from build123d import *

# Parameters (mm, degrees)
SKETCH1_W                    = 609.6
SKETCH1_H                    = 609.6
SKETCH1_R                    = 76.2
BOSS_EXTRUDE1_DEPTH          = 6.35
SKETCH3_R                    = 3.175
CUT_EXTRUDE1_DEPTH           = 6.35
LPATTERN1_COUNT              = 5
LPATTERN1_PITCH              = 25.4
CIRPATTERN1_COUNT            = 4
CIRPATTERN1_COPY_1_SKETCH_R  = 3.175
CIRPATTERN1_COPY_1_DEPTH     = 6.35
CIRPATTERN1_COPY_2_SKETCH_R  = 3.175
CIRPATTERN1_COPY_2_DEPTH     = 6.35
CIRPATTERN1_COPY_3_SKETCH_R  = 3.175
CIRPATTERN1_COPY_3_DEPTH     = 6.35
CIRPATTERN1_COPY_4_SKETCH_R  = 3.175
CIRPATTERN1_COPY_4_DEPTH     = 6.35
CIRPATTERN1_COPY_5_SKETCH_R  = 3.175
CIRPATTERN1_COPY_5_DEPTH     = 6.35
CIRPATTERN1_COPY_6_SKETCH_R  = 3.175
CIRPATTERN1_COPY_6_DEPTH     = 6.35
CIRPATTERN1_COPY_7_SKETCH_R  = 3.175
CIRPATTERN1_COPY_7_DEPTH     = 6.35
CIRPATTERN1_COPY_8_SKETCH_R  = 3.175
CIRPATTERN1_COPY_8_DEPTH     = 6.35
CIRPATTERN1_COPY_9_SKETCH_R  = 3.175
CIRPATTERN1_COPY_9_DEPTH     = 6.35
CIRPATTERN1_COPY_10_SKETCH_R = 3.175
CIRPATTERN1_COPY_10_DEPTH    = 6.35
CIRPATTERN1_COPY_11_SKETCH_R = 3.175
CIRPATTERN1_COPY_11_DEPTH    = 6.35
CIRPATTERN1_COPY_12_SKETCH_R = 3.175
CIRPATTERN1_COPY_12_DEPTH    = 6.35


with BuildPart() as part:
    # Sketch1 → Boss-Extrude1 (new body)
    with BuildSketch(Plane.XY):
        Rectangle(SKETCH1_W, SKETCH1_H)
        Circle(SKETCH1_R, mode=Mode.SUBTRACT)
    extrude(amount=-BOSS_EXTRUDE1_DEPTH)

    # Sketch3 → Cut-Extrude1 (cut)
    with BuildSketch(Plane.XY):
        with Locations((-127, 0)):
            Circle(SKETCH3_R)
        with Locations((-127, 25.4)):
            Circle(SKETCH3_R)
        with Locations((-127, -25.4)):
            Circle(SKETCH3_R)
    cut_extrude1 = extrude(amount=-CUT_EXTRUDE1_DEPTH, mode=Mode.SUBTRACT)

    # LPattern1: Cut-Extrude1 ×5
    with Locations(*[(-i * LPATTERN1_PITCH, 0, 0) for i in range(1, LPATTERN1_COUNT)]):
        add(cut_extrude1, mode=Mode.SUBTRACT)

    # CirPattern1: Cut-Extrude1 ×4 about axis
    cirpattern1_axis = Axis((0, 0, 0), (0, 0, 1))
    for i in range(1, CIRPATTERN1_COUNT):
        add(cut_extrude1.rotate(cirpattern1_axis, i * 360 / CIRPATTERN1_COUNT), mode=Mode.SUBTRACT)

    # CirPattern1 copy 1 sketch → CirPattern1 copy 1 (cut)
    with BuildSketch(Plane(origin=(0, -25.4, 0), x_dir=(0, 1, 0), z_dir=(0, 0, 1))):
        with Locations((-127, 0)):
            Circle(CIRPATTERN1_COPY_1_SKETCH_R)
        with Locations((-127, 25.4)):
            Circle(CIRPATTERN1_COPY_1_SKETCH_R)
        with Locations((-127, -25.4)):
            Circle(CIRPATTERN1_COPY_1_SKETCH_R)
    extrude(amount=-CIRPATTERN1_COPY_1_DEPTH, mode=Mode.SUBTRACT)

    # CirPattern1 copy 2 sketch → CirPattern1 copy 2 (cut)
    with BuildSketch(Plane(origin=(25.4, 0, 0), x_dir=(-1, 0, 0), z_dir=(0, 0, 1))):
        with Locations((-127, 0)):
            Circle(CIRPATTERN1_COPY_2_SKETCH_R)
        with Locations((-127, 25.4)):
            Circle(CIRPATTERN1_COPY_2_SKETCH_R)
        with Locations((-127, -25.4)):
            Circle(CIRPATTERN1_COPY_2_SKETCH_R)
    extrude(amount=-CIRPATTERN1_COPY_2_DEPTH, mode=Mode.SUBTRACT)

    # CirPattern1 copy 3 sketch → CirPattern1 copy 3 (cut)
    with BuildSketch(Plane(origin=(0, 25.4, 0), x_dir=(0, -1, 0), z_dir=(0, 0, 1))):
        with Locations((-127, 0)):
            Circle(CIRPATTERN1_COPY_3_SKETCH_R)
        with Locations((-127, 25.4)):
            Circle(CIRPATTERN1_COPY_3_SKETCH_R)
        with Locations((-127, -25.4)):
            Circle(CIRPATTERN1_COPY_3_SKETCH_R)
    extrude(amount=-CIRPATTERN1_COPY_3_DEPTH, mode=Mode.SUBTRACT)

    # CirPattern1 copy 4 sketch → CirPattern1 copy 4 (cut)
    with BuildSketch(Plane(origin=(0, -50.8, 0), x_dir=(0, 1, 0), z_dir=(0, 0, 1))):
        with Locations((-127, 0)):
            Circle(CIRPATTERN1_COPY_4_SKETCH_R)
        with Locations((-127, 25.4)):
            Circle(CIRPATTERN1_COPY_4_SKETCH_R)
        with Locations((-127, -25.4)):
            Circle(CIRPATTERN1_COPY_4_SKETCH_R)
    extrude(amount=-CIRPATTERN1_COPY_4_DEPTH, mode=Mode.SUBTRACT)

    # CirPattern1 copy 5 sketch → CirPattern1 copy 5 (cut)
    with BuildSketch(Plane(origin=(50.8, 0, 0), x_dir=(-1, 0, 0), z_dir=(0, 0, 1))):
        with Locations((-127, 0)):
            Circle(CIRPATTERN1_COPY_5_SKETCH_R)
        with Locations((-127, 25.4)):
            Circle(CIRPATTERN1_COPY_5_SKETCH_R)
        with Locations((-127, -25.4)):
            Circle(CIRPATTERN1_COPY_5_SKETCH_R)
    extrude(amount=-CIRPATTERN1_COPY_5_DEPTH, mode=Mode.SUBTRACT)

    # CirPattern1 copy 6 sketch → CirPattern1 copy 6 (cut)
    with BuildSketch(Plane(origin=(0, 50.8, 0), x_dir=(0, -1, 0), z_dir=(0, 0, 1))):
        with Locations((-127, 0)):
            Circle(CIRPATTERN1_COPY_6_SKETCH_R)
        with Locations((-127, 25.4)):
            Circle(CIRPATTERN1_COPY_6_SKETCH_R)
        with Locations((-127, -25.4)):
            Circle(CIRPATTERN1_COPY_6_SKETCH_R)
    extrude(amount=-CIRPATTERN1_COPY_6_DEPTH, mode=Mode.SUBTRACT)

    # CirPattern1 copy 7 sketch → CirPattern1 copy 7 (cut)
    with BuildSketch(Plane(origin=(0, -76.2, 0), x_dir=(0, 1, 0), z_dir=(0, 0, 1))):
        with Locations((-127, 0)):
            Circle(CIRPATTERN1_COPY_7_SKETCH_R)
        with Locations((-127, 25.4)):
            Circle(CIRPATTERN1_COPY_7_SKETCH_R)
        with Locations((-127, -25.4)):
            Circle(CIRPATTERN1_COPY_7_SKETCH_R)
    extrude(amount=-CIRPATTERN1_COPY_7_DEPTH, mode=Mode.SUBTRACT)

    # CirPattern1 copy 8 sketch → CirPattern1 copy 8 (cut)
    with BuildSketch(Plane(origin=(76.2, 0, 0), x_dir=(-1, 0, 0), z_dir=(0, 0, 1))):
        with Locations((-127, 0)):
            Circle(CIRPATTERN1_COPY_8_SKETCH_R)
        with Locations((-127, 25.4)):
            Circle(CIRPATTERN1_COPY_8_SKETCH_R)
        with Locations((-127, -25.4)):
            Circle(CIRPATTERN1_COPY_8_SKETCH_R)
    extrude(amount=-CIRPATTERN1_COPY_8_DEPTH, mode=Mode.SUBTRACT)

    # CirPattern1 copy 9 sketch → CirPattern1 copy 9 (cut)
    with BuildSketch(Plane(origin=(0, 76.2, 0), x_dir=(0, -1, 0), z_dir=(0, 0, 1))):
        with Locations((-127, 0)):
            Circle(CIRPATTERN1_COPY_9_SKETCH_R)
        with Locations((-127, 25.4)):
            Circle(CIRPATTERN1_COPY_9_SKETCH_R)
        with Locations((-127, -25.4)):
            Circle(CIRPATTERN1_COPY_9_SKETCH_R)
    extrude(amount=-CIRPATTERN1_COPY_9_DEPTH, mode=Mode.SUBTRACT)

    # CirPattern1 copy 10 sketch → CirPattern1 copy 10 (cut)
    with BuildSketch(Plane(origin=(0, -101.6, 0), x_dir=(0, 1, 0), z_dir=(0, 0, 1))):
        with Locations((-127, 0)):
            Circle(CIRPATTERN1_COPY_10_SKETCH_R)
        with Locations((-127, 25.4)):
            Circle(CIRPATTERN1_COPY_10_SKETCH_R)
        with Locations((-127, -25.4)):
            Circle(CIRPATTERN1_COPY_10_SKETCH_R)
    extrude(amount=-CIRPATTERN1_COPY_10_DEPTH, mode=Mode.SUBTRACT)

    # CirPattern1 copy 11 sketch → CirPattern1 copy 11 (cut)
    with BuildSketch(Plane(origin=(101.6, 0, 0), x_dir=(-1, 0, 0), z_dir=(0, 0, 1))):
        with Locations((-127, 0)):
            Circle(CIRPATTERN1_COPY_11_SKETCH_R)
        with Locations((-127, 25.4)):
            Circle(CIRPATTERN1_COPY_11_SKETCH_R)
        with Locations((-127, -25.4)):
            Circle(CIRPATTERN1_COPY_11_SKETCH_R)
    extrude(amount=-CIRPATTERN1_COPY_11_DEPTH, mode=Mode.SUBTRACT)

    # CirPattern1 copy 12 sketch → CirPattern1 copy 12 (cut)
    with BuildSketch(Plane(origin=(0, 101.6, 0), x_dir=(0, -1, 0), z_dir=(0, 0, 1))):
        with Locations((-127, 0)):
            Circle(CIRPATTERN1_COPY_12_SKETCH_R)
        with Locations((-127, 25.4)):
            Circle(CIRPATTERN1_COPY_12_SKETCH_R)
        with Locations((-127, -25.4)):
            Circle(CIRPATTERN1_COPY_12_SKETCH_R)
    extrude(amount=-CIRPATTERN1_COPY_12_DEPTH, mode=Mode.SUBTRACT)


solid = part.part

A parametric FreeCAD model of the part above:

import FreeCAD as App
import Part
import Sketcher

V = App.Vector
Q = App.Units.Quantity

doc = App.newDocument("Part")
body = doc.addObject("PartDesign::Body", "Body")

# Sketch on XY plane
sketch1 = doc.addObject("Sketcher::SketchObject", "Sketch")
body.addObject(sketch1)
sketch1.AttachmentSupport = (doc.XY_Plane, [""])
sketch1.MapMode = "FlatFace"
sketch1.addGeometry([
    Part.LineSegment(V(-305, 305, 0), V(-305, -305, 0)),  # 0
    Part.LineSegment(V(-305, -305, 0), V(305, -305, 0)),  # 1
    Part.LineSegment(V(305, -305, 0), V(305, 305, 0)),  # 2
    Part.LineSegment(V(305, 305, 0), V(-305, 305, 0)),  # 3
    Part.Circle(V(0, 0, 0), V(0, 0, 1), 76),  # 4
], False)
sketch1.addConstraint([
    Sketcher.Constraint("Coincident", 0, 2, 1, 1),
    Sketcher.Constraint("Coincident", 1, 2, 2, 1),
    Sketcher.Constraint("Coincident", 2, 2, 3, 1),
    Sketcher.Constraint("Coincident", 3, 2, 0, 1),
    Sketcher.Constraint("Vertical", 0),
    Sketcher.Constraint("Horizontal", 1),
    Sketcher.Constraint("Vertical", 2),
    Sketcher.Constraint("Horizontal", 3),
    Sketcher.Constraint("Coincident", 4, 3, -1, 1),
    Sketcher.Constraint("Symmetric", 0, 2, 2, 2, -1, 1),
    Sketcher.Constraint("Equal", 3, 0),
    Sketcher.Constraint("Diameter", 4, Q("6 in")),
    Sketcher.Constraint("DistanceX", 1, 1, 1, 2, Q("24 in")),
])
pad1 = doc.addObject("PartDesign::Pad", "Pad")
body.addObject(pad1)
pad1.Profile = sketch1
pad1.Length = Q("0.25 in")
pad1.Reversed = True

# Sketch on XY plane
sketch2 = doc.addObject("Sketcher::SketchObject", "Sketch001")
body.addObject(sketch2)
sketch2.AttachmentSupport = (doc.XY_Plane, [""])
sketch2.MapMode = "FlatFace"
sketch2.addGeometry([
    Part.Circle(V(-127, 0, 0), V(0, 0, 1), 3.2),
    Part.Circle(V(-127, 25.4, 0), V(0, 0, 1), 3.2),
    Part.Circle(V(-127, -25.4, 0), V(0, 0, 1), 3.2),
], False)
sketch2.addConstraint([
    Sketcher.Constraint("Equal", 0, 1),
    Sketcher.Constraint("Equal", 1, 2),
    Sketcher.Constraint("Symmetric", 1, 3, 2, 3, -1),
    Sketcher.Constraint("PointOnObject", 0, 3, -1),
    Sketcher.Constraint("Vertical", 0, 3, 1, 3),
    Sketcher.Constraint("Diameter", 0, Q("0.25 in")),
    Sketcher.Constraint("DistanceX", 0, 3, -1, 1, Q("5 in")),
    Sketcher.Constraint("DistanceY", -1, 1, 1, 3, Q("1 in")),
])
pocket1 = doc.addObject("PartDesign::Pocket", "Pocket")
body.addObject(pocket1)
pocket1.Profile = sketch2
pocket1.Length = Q("0.25 in")
doc.recompute()

linearpattern = doc.addObject("PartDesign::LinearPattern", "LinearPattern")
body.addObject(linearpattern)
linearpattern.Originals = [pocket1]
linearpattern.Direction = (doc.X_Axis, [""])
linearpattern.Mode = "offset"
linearpattern.Offset = Q("1 in")
linearpattern.Occurrences = 5
linearpattern.Reversed = True
body.Tip = linearpattern
doc.recompute()

polarpattern = doc.addObject("PartDesign::PolarPattern", "PolarPattern")
body.addObject(polarpattern)
polarpattern.Originals = [pocket1]
polarpattern.Axis = (doc.Z_Axis, [""])
polarpattern.Angle = 360
polarpattern.Occurrences = 4
body.Tip = polarpattern

# Sketch on XY plane
sketch3 = doc.addObject("Sketcher::SketchObject", "Sketch002")
body.addObject(sketch3)
sketch3.AttachmentSupport = (doc.XY_Plane, [""])
sketch3.MapMode = "FlatFace"
sketch3.addGeometry([
    Part.Circle(V(0, -152.4, 0), V(0, 0, 1), 3.2),
    Part.Circle(V(-25.4, -152.4, 0), V(0, 0, 1), 3.2),
    Part.Circle(V(25.4, -152.4, 0), V(0, 0, 1), 3.2),
], False)
sketch3.addConstraint([
    Sketcher.Constraint("Equal", 0, 1),
    Sketcher.Constraint("Equal", 1, 2),
    Sketcher.Constraint("Symmetric", 1, 3, 2, 3, -2),
    Sketcher.Constraint("PointOnObject", 0, 3, -2),
    Sketcher.Constraint("Horizontal", 0, 3, 1, 3),
    Sketcher.Constraint("Diameter", 0, Q("0.25 in")),
    Sketcher.Constraint("DistanceY", 0, 3, -1, 1, Q("6 in")),
    Sketcher.Constraint("DistanceX", 1, 3, -1, 1, Q("1 in")),
])
pocket2 = doc.addObject("PartDesign::Pocket", "Pocket001")
body.addObject(pocket2)
pocket2.Profile = sketch3
pocket2.Length = Q("0.25 in")

# Sketch on XY plane
sketch4 = doc.addObject("Sketcher::SketchObject", "Sketch003")
body.addObject(sketch4)
sketch4.AttachmentSupport = (doc.XY_Plane, [""])
sketch4.MapMode = "FlatFace"
sketch4.addGeometry([
    Part.Circle(V(152.4, 0, 0), V(0, 0, 1), 3.2),
    Part.Circle(V(152.4, -25.4, 0), V(0, 0, 1), 3.2),
    Part.Circle(V(152.4, 25.4, 0), V(0, 0, 1), 3.2),
], False)
sketch4.addConstraint([
    Sketcher.Constraint("Equal", 0, 1),
    Sketcher.Constraint("Equal", 1, 2),
    Sketcher.Constraint("Symmetric", 1, 3, 2, 3, -1),
    Sketcher.Constraint("PointOnObject", 0, 3, -1),
    Sketcher.Constraint("Vertical", 0, 3, 1, 3),
    Sketcher.Constraint("Diameter", 0, Q("0.25 in")),
    Sketcher.Constraint("DistanceX", -1, 1, 0, 3, Q("6 in")),
    Sketcher.Constraint("DistanceY", 1, 3, -1, 1, Q("1 in")),
])
pocket3 = doc.addObject("PartDesign::Pocket", "Pocket002")
body.addObject(pocket3)
pocket3.Profile = sketch4
pocket3.Length = Q("0.25 in")

# Sketch on XY plane
sketch5 = doc.addObject("Sketcher::SketchObject", "Sketch004")
body.addObject(sketch5)
sketch5.AttachmentSupport = (doc.XY_Plane, [""])
sketch5.MapMode = "FlatFace"
sketch5.addGeometry([
    Part.Circle(V(0, 152.4, 0), V(0, 0, 1), 3.2),
    Part.Circle(V(25.4, 152.4, 0), V(0, 0, 1), 3.2),
    Part.Circle(V(-25.4, 152.4, 0), V(0, 0, 1), 3.2),
], False)
sketch5.addConstraint([
    Sketcher.Constraint("Equal", 0, 1),
    Sketcher.Constraint("Equal", 1, 2),
    Sketcher.Constraint("Symmetric", 1, 3, 2, 3, -2),
    Sketcher.Constraint("PointOnObject", 0, 3, -2),
    Sketcher.Constraint("Horizontal", 0, 3, 1, 3),
    Sketcher.Constraint("Diameter", 0, Q("0.25 in")),
    Sketcher.Constraint("DistanceY", -1, 1, 0, 3, Q("6 in")),
    Sketcher.Constraint("DistanceX", -1, 1, 1, 3, Q("1 in")),
])
pocket4 = doc.addObject("PartDesign::Pocket", "Pocket003")
body.addObject(pocket4)
pocket4.Profile = sketch5
pocket4.Length = Q("0.25 in")

# Sketch on XY plane
sketch6 = doc.addObject("Sketcher::SketchObject", "Sketch005")
body.addObject(sketch6)
sketch6.AttachmentSupport = (doc.XY_Plane, [""])
sketch6.MapMode = "FlatFace"
sketch6.addGeometry([
    Part.Circle(V(0, -177.8, 0), V(0, 0, 1), 3.2),
    Part.Circle(V(-25.4, -177.8, 0), V(0, 0, 1), 3.2),
    Part.Circle(V(25.4, -177.8, 0), V(0, 0, 1), 3.2),
], False)
sketch6.addConstraint([
    Sketcher.Constraint("Equal", 0, 1),
    Sketcher.Constraint("Equal", 1, 2),
    Sketcher.Constraint("Symmetric", 1, 3, 2, 3, -2),
    Sketcher.Constraint("PointOnObject", 0, 3, -2),
    Sketcher.Constraint("Horizontal", 0, 3, 1, 3),
    Sketcher.Constraint("Diameter", 0, Q("0.25 in")),
    Sketcher.Constraint("DistanceY", 0, 3, -1, 1, Q("7 in")),
    Sketcher.Constraint("DistanceX", 1, 3, -1, 1, Q("1 in")),
])
pocket5 = doc.addObject("PartDesign::Pocket", "Pocket004")
body.addObject(pocket5)
pocket5.Profile = sketch6
pocket5.Length = Q("0.25 in")

# Sketch on XY plane
sketch7 = doc.addObject("Sketcher::SketchObject", "Sketch006")
body.addObject(sketch7)
sketch7.AttachmentSupport = (doc.XY_Plane, [""])
sketch7.MapMode = "FlatFace"
sketch7.addGeometry([
    Part.Circle(V(177.8, 0, 0), V(0, 0, 1), 3.2),
    Part.Circle(V(177.8, -25.4, 0), V(0, 0, 1), 3.2),
    Part.Circle(V(177.8, 25.4, 0), V(0, 0, 1), 3.2),
], False)
sketch7.addConstraint([
    Sketcher.Constraint("Equal", 0, 1),
    Sketcher.Constraint("Equal", 1, 2),
    Sketcher.Constraint("Symmetric", 1, 3, 2, 3, -1),
    Sketcher.Constraint("PointOnObject", 0, 3, -1),
    Sketcher.Constraint("Vertical", 0, 3, 1, 3),
    Sketcher.Constraint("Diameter", 0, Q("0.25 in")),
    Sketcher.Constraint("DistanceX", -1, 1, 0, 3, Q("7 in")),
    Sketcher.Constraint("DistanceY", 1, 3, -1, 1, Q("1 in")),
])
pocket6 = doc.addObject("PartDesign::Pocket", "Pocket005")
body.addObject(pocket6)
pocket6.Profile = sketch7
pocket6.Length = Q("0.25 in")

# Sketch on XY plane
sketch8 = doc.addObject("Sketcher::SketchObject", "Sketch007")
body.addObject(sketch8)
sketch8.AttachmentSupport = (doc.XY_Plane, [""])
sketch8.MapMode = "FlatFace"
sketch8.addGeometry([
    Part.Circle(V(0, 177.8, 0), V(0, 0, 1), 3.2),
    Part.Circle(V(25.4, 177.8, 0), V(0, 0, 1), 3.2),
    Part.Circle(V(-25.4, 177.8, 0), V(0, 0, 1), 3.2),
], False)
sketch8.addConstraint([
    Sketcher.Constraint("Equal", 0, 1),
    Sketcher.Constraint("Equal", 1, 2),
    Sketcher.Constraint("Symmetric", 1, 3, 2, 3, -2),
    Sketcher.Constraint("PointOnObject", 0, 3, -2),
    Sketcher.Constraint("Horizontal", 0, 3, 1, 3),
    Sketcher.Constraint("Diameter", 0, Q("0.25 in")),
    Sketcher.Constraint("DistanceY", -1, 1, 0, 3, Q("7 in")),
    Sketcher.Constraint("DistanceX", -1, 1, 1, 3, Q("1 in")),
])
pocket7 = doc.addObject("PartDesign::Pocket", "Pocket006")
body.addObject(pocket7)
pocket7.Profile = sketch8
pocket7.Length = Q("0.25 in")

# Sketch on XY plane
sketch9 = doc.addObject("Sketcher::SketchObject", "Sketch008")
body.addObject(sketch9)
sketch9.AttachmentSupport = (doc.XY_Plane, [""])
sketch9.MapMode = "FlatFace"
sketch9.addGeometry([
    Part.Circle(V(0, -203.2, 0), V(0, 0, 1), 3.2),
    Part.Circle(V(-25.4, -203.2, 0), V(0, 0, 1), 3.2),
    Part.Circle(V(25.4, -203.2, 0), V(0, 0, 1), 3.2),
], False)
sketch9.addConstraint([
    Sketcher.Constraint("Equal", 0, 1),
    Sketcher.Constraint("Equal", 1, 2),
    Sketcher.Constraint("Symmetric", 1, 3, 2, 3, -2),
    Sketcher.Constraint("PointOnObject", 0, 3, -2),
    Sketcher.Constraint("Horizontal", 0, 3, 1, 3),
    Sketcher.Constraint("Diameter", 0, Q("0.25 in")),
    Sketcher.Constraint("DistanceY", 0, 3, -1, 1, Q("8 in")),
    Sketcher.Constraint("DistanceX", 1, 3, -1, 1, Q("1 in")),
])
pocket8 = doc.addObject("PartDesign::Pocket", "Pocket007")
body.addObject(pocket8)
pocket8.Profile = sketch9
pocket8.Length = Q("0.25 in")

# Sketch on XY plane
sketch10 = doc.addObject("Sketcher::SketchObject", "Sketch009")
body.addObject(sketch10)
sketch10.AttachmentSupport = (doc.XY_Plane, [""])
sketch10.MapMode = "FlatFace"
sketch10.addGeometry([
    Part.Circle(V(203.2, 0, 0), V(0, 0, 1), 3.2),
    Part.Circle(V(203.2, -25.4, 0), V(0, 0, 1), 3.2),
    Part.Circle(V(203.2, 25.4, 0), V(0, 0, 1), 3.2),
], False)
sketch10.addConstraint([
    Sketcher.Constraint("Equal", 0, 1),
    Sketcher.Constraint("Equal", 1, 2),
    Sketcher.Constraint("Symmetric", 1, 3, 2, 3, -1),
    Sketcher.Constraint("PointOnObject", 0, 3, -1),
    Sketcher.Constraint("Vertical", 0, 3, 1, 3),
    Sketcher.Constraint("Diameter", 0, Q("0.25 in")),
    Sketcher.Constraint("DistanceX", -1, 1, 0, 3, Q("8 in")),
    Sketcher.Constraint("DistanceY", 1, 3, -1, 1, Q("1 in")),
])
pocket9 = doc.addObject("PartDesign::Pocket", "Pocket008")
body.addObject(pocket9)
pocket9.Profile = sketch10
pocket9.Length = Q("0.25 in")

# Sketch on XY plane
sketch11 = doc.addObject("Sketcher::SketchObject", "Sketch010")
body.addObject(sketch11)
sketch11.AttachmentSupport = (doc.XY_Plane, [""])
sketch11.MapMode = "FlatFace"
sketch11.addGeometry([
    Part.Circle(V(0, 203.2, 0), V(0, 0, 1), 3.2),
    Part.Circle(V(25.4, 203.2, 0), V(0, 0, 1), 3.2),
    Part.Circle(V(-25.4, 203.2, 0), V(0, 0, 1), 3.2),
], False)
sketch11.addConstraint([
    Sketcher.Constraint("Equal", 0, 1),
    Sketcher.Constraint("Equal", 1, 2),
    Sketcher.Constraint("Symmetric", 1, 3, 2, 3, -2),
    Sketcher.Constraint("PointOnObject", 0, 3, -2),
    Sketcher.Constraint("Horizontal", 0, 3, 1, 3),
    Sketcher.Constraint("Diameter", 0, Q("0.25 in")),
    Sketcher.Constraint("DistanceY", -1, 1, 0, 3, Q("8 in")),
    Sketcher.Constraint("DistanceX", -1, 1, 1, 3, Q("1 in")),
])
pocket10 = doc.addObject("PartDesign::Pocket", "Pocket009")
body.addObject(pocket10)
pocket10.Profile = sketch11
pocket10.Length = Q("0.25 in")

# Sketch on XY plane
sketch12 = doc.addObject("Sketcher::SketchObject", "Sketch011")
body.addObject(sketch12)
sketch12.AttachmentSupport = (doc.XY_Plane, [""])
sketch12.MapMode = "FlatFace"
sketch12.addGeometry([
    Part.Circle(V(0, -228.6, 0), V(0, 0, 1), 3.2),
    Part.Circle(V(-25.4, -228.6, 0), V(0, 0, 1), 3.2),
    Part.Circle(V(25.4, -228.6, 0), V(0, 0, 1), 3.2),
], False)
sketch12.addConstraint([
    Sketcher.Constraint("Equal", 0, 1),
    Sketcher.Constraint("Equal", 1, 2),
    Sketcher.Constraint("Symmetric", 1, 3, 2, 3, -2),
    Sketcher.Constraint("PointOnObject", 0, 3, -2),
    Sketcher.Constraint("Horizontal", 0, 3, 1, 3),
    Sketcher.Constraint("Diameter", 0, Q("0.25 in")),
    Sketcher.Constraint("DistanceY", 0, 3, -1, 1, Q("9 in")),
    Sketcher.Constraint("DistanceX", 1, 3, -1, 1, Q("1 in")),
])
pocket11 = doc.addObject("PartDesign::Pocket", "Pocket010")
body.addObject(pocket11)
pocket11.Profile = sketch12
pocket11.Length = Q("0.25 in")

# Sketch on XY plane
sketch13 = doc.addObject("Sketcher::SketchObject", "Sketch012")
body.addObject(sketch13)
sketch13.AttachmentSupport = (doc.XY_Plane, [""])
sketch13.MapMode = "FlatFace"
sketch13.addGeometry([
    Part.Circle(V(228.6, 0, 0), V(0, 0, 1), 3.2),
    Part.Circle(V(228.6, -25.4, 0), V(0, 0, 1), 3.2),
    Part.Circle(V(228.6, 25.4, 0), V(0, 0, 1), 3.2),
], False)
sketch13.addConstraint([
    Sketcher.Constraint("Equal", 0, 1),
    Sketcher.Constraint("Equal", 1, 2),
    Sketcher.Constraint("Symmetric", 1, 3, 2, 3, -1),
    Sketcher.Constraint("PointOnObject", 0, 3, -1),
    Sketcher.Constraint("Vertical", 0, 3, 1, 3),
    Sketcher.Constraint("Diameter", 0, Q("0.25 in")),
    Sketcher.Constraint("DistanceX", -1, 1, 0, 3, Q("9 in")),
    Sketcher.Constraint("DistanceY", 1, 3, -1, 1, Q("1 in")),
])
pocket12 = doc.addObject("PartDesign::Pocket", "Pocket011")
body.addObject(pocket12)
pocket12.Profile = sketch13
pocket12.Length = Q("0.25 in")

# Sketch on XY plane
sketch14 = doc.addObject("Sketcher::SketchObject", "Sketch013")
body.addObject(sketch14)
sketch14.AttachmentSupport = (doc.XY_Plane, [""])
sketch14.MapMode = "FlatFace"
sketch14.addGeometry([
    Part.Circle(V(0, 228.6, 0), V(0, 0, 1), 3.2),
    Part.Circle(V(25.4, 228.6, 0), V(0, 0, 1), 3.2),
    Part.Circle(V(-25.4, 228.6, 0), V(0, 0, 1), 3.2),
], False)
sketch14.addConstraint([
    Sketcher.Constraint("Equal", 0, 1),
    Sketcher.Constraint("Equal", 1, 2),
    Sketcher.Constraint("Symmetric", 1, 3, 2, 3, -2),
    Sketcher.Constraint("PointOnObject", 0, 3, -2),
    Sketcher.Constraint("Horizontal", 0, 3, 1, 3),
    Sketcher.Constraint("Diameter", 0, Q("0.25 in")),
    Sketcher.Constraint("DistanceY", -1, 1, 0, 3, Q("9 in")),
    Sketcher.Constraint("DistanceX", -1, 1, 1, 3, Q("1 in")),
])
pocket13 = doc.addObject("PartDesign::Pocket", "Pocket012")
body.addObject(pocket13)
pocket13.Profile = sketch14
pocket13.Length = Q("0.25 in")

doc.recompute()
